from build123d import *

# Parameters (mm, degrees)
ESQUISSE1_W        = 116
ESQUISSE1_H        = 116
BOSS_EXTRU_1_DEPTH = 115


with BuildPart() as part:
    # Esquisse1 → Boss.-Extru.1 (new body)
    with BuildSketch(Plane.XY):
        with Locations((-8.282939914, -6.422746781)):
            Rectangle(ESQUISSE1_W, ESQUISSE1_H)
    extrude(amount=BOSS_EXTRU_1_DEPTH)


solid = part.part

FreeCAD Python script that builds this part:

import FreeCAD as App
import Part
import Sketcher
from FreeCAD import Vector


def add_polygon(sketch, points):
    """Adds a closed chain of lines whose ends are joined by coincident constraints."""
    first, n = sketch.GeometryCount, len(points)
    for a, b in zip(points, points[1:] + points[:1]):
        sketch.addGeometry(Part.LineSegment(App.Vector(*a, 0), App.Vector(*b, 0)), False)
    for i in range(n):
        sketch.addConstraint(Sketcher.Constraint("Coincident", first + i, 2, first + (i + 1) % n, 1))

doc = App.newDocument("Part")
body = doc.addObject("PartDesign::Body", "Body")

# Sketch on XY plane
sketch1 = doc.addObject("Sketcher::SketchObject", "Sketch")
body.addObject(sketch1)
sketch1.AttachmentSupport = (doc.XY_Plane, [""])
sketch1.MapMode = "FlatFace"
add_polygon(sketch1, [(-66, 52), (-66, -64), (50, -64), (50, 52)])  # lines 0-3
sketch1.addConstraint(Sketcher.Constraint("Vertical", 0))
sketch1.addConstraint(Sketcher.Constraint("Horizontal", 1))
sketch1.addConstraint(Sketcher.Constraint("Vertical", 2))
sketch1.addConstraint(Sketcher.Constraint("Horizontal", 3))
sketch1.addConstraint(Sketcher.Constraint("Equal", 3, 0))
sketch1.addConstraint(Sketcher.Constraint("DistanceX", 1, 1, 1, 2, 116.0))
sketch1.addConstraint(Sketcher.Constraint("DistanceX", 0, 2, -1, 1, 66.28294))
sketch1.addConstraint(Sketcher.Constraint("DistanceY", 0, 2, -1, 1, 64.422747))
pad1 = doc.addObject("PartDesign::Pad", "Pad")
body.addObject(pad1)
pad1.Profile = sketch1
pad1.Length = 115

doc.recompute()
